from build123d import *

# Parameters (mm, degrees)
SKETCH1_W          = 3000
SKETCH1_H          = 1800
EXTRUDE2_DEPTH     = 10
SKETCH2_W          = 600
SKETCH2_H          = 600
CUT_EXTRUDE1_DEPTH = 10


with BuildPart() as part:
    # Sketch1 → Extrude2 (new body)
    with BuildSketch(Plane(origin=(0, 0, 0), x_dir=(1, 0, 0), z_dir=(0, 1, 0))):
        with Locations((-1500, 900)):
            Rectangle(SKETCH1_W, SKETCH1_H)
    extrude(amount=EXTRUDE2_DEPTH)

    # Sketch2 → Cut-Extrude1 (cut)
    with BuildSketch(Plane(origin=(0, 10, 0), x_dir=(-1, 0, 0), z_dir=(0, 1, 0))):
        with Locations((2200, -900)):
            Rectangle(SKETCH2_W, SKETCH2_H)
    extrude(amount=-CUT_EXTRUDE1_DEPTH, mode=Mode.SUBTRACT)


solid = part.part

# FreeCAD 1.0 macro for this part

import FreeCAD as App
import Part
import Sketcher


def add_polygon(sketch, points):
    """Adds a closed chain of lines whose ends are joined by coincident constraints."""
    first, n = sketch.GeometryCount, len(points)
    for a, b in zip(points, points[1:] + points[:1]):
        sketch.addGeometry(Part.LineSegment(App.Vector(*a, 0), App.Vector(*b, 0)), False)
    for i in range(n):
        sketch.addConstraint(Sketcher.Constraint("Coincident", first + i, 2, first + (i + 1) % n, 1))

doc = App.newDocument("Part")
params = doc.addObject("Spreadsheet::Sheet", "Params")
for row, (alias, value) in enumerate([
    ("sketch1_width", "3000 mm"),
    ("sketch1_height", "1800 mm"),
    ("pad1_length", "10 mm"),
    ("sketch2_width", "600 mm"),
    ("pocket1_length", "10 mm"),
], start=1):
    params.set(f"A{row}", alias)
    params.set(f"B{row}", "=" + value)
    params.setAlias(f"B{row}", alias)

body = doc.addObject("PartDesign::Body", "Body")

# Sketch on XZ plane
sketch1 = body.newObject("Sketcher::SketchObject", "Sketch")
sketch1.AttachmentSupport = (doc.getObject("XZ_Plane"), [""])
sketch1.MapMode = "FlatFace"
add_polygon(sketch1, [(-3000, -1800), (-3000, 0), (0, 0), (0, -1800)])  # lines 0-3
sketch1.addConstraint(Sketcher.Constraint("Vertical", 0))
sketch1.addConstraint(Sketcher.Constraint("Horizontal", 1))
sketch1.addConstraint(Sketcher.Constraint("Vertical", 2))
sketch1.addConstraint(Sketcher.Constraint("Horizontal", 3))
sketch1.addConstraint(Sketcher.Constraint("Coincident", 1, 2, -1, 1))
sketch1.addConstraint(Sketcher.Constraint("DistanceX", 1, 1, 1, 2, 3000.0))
sketch1.addConstraint(Sketcher.Constraint("DistanceY", 0, 1, 0, 2, 1800.0))
sketch1.setExpression("Constraints[9]", "Params.sketch1_width")
sketch1.setExpression("Constraints[10]", "Params.sketch1_height")
pad1 = body.newObject("PartDesign::Pad", "Pad")
pad1.Profile = sketch1
pad1.setExpression("Length", "Params.pad1_length")
pad1.Reversed = True

# Sketch on XZ plane
sketch2 = body.newObject("Sketcher::SketchObject", "Sketch001")
sketch2.AttachmentSupport = (doc.getObject("XZ_Plane"), [""])
sketch2.MapMode = "FlatFace"
sketch2.AttachmentOffset = App.Placement(App.Vector(0, 0, -10), App.Rotation())
add_polygon(sketch2, [(-1900, -600), (-1900, -1200), (-2500, -1200), (-2500, -600)])  # lines 0-3
sketch2.addConstraint(Sketcher.Constraint("Vertical", 0))
sketch2.addConstraint(Sketcher.Constraint("Horizontal", 1))
sketch2.addConstraint(Sketcher.Constraint("Vertical", 2))
sketch2.addConstraint(Sketcher.Constraint("Horizontal", 3))
sketch2.addConstraint(Sketcher.Constraint("Equal", 3, 0))
sketch2.addConstraint(Sketcher.Constraint("DistanceX", 1, 2, 1, 1, 600.0))
sketch2.addConstraint(Sketcher.Constraint("DistanceX", 0, 2, -1, 1, 1900.0))
sketch2.addConstraint(Sketcher.Constraint("DistanceY", 0, 2, -1, 1, 1200.0))
sketch2.setExpression("Constraints[9]", "Params.sketch2_width")
pocket1 = body.newObject("PartDesign::Pocket", "Pocket")
pocket1.Profile = sketch2
pocket1.setExpression("Length", "Params.pocket1_length")
pocket1.Reversed = True

doc.recompute()
